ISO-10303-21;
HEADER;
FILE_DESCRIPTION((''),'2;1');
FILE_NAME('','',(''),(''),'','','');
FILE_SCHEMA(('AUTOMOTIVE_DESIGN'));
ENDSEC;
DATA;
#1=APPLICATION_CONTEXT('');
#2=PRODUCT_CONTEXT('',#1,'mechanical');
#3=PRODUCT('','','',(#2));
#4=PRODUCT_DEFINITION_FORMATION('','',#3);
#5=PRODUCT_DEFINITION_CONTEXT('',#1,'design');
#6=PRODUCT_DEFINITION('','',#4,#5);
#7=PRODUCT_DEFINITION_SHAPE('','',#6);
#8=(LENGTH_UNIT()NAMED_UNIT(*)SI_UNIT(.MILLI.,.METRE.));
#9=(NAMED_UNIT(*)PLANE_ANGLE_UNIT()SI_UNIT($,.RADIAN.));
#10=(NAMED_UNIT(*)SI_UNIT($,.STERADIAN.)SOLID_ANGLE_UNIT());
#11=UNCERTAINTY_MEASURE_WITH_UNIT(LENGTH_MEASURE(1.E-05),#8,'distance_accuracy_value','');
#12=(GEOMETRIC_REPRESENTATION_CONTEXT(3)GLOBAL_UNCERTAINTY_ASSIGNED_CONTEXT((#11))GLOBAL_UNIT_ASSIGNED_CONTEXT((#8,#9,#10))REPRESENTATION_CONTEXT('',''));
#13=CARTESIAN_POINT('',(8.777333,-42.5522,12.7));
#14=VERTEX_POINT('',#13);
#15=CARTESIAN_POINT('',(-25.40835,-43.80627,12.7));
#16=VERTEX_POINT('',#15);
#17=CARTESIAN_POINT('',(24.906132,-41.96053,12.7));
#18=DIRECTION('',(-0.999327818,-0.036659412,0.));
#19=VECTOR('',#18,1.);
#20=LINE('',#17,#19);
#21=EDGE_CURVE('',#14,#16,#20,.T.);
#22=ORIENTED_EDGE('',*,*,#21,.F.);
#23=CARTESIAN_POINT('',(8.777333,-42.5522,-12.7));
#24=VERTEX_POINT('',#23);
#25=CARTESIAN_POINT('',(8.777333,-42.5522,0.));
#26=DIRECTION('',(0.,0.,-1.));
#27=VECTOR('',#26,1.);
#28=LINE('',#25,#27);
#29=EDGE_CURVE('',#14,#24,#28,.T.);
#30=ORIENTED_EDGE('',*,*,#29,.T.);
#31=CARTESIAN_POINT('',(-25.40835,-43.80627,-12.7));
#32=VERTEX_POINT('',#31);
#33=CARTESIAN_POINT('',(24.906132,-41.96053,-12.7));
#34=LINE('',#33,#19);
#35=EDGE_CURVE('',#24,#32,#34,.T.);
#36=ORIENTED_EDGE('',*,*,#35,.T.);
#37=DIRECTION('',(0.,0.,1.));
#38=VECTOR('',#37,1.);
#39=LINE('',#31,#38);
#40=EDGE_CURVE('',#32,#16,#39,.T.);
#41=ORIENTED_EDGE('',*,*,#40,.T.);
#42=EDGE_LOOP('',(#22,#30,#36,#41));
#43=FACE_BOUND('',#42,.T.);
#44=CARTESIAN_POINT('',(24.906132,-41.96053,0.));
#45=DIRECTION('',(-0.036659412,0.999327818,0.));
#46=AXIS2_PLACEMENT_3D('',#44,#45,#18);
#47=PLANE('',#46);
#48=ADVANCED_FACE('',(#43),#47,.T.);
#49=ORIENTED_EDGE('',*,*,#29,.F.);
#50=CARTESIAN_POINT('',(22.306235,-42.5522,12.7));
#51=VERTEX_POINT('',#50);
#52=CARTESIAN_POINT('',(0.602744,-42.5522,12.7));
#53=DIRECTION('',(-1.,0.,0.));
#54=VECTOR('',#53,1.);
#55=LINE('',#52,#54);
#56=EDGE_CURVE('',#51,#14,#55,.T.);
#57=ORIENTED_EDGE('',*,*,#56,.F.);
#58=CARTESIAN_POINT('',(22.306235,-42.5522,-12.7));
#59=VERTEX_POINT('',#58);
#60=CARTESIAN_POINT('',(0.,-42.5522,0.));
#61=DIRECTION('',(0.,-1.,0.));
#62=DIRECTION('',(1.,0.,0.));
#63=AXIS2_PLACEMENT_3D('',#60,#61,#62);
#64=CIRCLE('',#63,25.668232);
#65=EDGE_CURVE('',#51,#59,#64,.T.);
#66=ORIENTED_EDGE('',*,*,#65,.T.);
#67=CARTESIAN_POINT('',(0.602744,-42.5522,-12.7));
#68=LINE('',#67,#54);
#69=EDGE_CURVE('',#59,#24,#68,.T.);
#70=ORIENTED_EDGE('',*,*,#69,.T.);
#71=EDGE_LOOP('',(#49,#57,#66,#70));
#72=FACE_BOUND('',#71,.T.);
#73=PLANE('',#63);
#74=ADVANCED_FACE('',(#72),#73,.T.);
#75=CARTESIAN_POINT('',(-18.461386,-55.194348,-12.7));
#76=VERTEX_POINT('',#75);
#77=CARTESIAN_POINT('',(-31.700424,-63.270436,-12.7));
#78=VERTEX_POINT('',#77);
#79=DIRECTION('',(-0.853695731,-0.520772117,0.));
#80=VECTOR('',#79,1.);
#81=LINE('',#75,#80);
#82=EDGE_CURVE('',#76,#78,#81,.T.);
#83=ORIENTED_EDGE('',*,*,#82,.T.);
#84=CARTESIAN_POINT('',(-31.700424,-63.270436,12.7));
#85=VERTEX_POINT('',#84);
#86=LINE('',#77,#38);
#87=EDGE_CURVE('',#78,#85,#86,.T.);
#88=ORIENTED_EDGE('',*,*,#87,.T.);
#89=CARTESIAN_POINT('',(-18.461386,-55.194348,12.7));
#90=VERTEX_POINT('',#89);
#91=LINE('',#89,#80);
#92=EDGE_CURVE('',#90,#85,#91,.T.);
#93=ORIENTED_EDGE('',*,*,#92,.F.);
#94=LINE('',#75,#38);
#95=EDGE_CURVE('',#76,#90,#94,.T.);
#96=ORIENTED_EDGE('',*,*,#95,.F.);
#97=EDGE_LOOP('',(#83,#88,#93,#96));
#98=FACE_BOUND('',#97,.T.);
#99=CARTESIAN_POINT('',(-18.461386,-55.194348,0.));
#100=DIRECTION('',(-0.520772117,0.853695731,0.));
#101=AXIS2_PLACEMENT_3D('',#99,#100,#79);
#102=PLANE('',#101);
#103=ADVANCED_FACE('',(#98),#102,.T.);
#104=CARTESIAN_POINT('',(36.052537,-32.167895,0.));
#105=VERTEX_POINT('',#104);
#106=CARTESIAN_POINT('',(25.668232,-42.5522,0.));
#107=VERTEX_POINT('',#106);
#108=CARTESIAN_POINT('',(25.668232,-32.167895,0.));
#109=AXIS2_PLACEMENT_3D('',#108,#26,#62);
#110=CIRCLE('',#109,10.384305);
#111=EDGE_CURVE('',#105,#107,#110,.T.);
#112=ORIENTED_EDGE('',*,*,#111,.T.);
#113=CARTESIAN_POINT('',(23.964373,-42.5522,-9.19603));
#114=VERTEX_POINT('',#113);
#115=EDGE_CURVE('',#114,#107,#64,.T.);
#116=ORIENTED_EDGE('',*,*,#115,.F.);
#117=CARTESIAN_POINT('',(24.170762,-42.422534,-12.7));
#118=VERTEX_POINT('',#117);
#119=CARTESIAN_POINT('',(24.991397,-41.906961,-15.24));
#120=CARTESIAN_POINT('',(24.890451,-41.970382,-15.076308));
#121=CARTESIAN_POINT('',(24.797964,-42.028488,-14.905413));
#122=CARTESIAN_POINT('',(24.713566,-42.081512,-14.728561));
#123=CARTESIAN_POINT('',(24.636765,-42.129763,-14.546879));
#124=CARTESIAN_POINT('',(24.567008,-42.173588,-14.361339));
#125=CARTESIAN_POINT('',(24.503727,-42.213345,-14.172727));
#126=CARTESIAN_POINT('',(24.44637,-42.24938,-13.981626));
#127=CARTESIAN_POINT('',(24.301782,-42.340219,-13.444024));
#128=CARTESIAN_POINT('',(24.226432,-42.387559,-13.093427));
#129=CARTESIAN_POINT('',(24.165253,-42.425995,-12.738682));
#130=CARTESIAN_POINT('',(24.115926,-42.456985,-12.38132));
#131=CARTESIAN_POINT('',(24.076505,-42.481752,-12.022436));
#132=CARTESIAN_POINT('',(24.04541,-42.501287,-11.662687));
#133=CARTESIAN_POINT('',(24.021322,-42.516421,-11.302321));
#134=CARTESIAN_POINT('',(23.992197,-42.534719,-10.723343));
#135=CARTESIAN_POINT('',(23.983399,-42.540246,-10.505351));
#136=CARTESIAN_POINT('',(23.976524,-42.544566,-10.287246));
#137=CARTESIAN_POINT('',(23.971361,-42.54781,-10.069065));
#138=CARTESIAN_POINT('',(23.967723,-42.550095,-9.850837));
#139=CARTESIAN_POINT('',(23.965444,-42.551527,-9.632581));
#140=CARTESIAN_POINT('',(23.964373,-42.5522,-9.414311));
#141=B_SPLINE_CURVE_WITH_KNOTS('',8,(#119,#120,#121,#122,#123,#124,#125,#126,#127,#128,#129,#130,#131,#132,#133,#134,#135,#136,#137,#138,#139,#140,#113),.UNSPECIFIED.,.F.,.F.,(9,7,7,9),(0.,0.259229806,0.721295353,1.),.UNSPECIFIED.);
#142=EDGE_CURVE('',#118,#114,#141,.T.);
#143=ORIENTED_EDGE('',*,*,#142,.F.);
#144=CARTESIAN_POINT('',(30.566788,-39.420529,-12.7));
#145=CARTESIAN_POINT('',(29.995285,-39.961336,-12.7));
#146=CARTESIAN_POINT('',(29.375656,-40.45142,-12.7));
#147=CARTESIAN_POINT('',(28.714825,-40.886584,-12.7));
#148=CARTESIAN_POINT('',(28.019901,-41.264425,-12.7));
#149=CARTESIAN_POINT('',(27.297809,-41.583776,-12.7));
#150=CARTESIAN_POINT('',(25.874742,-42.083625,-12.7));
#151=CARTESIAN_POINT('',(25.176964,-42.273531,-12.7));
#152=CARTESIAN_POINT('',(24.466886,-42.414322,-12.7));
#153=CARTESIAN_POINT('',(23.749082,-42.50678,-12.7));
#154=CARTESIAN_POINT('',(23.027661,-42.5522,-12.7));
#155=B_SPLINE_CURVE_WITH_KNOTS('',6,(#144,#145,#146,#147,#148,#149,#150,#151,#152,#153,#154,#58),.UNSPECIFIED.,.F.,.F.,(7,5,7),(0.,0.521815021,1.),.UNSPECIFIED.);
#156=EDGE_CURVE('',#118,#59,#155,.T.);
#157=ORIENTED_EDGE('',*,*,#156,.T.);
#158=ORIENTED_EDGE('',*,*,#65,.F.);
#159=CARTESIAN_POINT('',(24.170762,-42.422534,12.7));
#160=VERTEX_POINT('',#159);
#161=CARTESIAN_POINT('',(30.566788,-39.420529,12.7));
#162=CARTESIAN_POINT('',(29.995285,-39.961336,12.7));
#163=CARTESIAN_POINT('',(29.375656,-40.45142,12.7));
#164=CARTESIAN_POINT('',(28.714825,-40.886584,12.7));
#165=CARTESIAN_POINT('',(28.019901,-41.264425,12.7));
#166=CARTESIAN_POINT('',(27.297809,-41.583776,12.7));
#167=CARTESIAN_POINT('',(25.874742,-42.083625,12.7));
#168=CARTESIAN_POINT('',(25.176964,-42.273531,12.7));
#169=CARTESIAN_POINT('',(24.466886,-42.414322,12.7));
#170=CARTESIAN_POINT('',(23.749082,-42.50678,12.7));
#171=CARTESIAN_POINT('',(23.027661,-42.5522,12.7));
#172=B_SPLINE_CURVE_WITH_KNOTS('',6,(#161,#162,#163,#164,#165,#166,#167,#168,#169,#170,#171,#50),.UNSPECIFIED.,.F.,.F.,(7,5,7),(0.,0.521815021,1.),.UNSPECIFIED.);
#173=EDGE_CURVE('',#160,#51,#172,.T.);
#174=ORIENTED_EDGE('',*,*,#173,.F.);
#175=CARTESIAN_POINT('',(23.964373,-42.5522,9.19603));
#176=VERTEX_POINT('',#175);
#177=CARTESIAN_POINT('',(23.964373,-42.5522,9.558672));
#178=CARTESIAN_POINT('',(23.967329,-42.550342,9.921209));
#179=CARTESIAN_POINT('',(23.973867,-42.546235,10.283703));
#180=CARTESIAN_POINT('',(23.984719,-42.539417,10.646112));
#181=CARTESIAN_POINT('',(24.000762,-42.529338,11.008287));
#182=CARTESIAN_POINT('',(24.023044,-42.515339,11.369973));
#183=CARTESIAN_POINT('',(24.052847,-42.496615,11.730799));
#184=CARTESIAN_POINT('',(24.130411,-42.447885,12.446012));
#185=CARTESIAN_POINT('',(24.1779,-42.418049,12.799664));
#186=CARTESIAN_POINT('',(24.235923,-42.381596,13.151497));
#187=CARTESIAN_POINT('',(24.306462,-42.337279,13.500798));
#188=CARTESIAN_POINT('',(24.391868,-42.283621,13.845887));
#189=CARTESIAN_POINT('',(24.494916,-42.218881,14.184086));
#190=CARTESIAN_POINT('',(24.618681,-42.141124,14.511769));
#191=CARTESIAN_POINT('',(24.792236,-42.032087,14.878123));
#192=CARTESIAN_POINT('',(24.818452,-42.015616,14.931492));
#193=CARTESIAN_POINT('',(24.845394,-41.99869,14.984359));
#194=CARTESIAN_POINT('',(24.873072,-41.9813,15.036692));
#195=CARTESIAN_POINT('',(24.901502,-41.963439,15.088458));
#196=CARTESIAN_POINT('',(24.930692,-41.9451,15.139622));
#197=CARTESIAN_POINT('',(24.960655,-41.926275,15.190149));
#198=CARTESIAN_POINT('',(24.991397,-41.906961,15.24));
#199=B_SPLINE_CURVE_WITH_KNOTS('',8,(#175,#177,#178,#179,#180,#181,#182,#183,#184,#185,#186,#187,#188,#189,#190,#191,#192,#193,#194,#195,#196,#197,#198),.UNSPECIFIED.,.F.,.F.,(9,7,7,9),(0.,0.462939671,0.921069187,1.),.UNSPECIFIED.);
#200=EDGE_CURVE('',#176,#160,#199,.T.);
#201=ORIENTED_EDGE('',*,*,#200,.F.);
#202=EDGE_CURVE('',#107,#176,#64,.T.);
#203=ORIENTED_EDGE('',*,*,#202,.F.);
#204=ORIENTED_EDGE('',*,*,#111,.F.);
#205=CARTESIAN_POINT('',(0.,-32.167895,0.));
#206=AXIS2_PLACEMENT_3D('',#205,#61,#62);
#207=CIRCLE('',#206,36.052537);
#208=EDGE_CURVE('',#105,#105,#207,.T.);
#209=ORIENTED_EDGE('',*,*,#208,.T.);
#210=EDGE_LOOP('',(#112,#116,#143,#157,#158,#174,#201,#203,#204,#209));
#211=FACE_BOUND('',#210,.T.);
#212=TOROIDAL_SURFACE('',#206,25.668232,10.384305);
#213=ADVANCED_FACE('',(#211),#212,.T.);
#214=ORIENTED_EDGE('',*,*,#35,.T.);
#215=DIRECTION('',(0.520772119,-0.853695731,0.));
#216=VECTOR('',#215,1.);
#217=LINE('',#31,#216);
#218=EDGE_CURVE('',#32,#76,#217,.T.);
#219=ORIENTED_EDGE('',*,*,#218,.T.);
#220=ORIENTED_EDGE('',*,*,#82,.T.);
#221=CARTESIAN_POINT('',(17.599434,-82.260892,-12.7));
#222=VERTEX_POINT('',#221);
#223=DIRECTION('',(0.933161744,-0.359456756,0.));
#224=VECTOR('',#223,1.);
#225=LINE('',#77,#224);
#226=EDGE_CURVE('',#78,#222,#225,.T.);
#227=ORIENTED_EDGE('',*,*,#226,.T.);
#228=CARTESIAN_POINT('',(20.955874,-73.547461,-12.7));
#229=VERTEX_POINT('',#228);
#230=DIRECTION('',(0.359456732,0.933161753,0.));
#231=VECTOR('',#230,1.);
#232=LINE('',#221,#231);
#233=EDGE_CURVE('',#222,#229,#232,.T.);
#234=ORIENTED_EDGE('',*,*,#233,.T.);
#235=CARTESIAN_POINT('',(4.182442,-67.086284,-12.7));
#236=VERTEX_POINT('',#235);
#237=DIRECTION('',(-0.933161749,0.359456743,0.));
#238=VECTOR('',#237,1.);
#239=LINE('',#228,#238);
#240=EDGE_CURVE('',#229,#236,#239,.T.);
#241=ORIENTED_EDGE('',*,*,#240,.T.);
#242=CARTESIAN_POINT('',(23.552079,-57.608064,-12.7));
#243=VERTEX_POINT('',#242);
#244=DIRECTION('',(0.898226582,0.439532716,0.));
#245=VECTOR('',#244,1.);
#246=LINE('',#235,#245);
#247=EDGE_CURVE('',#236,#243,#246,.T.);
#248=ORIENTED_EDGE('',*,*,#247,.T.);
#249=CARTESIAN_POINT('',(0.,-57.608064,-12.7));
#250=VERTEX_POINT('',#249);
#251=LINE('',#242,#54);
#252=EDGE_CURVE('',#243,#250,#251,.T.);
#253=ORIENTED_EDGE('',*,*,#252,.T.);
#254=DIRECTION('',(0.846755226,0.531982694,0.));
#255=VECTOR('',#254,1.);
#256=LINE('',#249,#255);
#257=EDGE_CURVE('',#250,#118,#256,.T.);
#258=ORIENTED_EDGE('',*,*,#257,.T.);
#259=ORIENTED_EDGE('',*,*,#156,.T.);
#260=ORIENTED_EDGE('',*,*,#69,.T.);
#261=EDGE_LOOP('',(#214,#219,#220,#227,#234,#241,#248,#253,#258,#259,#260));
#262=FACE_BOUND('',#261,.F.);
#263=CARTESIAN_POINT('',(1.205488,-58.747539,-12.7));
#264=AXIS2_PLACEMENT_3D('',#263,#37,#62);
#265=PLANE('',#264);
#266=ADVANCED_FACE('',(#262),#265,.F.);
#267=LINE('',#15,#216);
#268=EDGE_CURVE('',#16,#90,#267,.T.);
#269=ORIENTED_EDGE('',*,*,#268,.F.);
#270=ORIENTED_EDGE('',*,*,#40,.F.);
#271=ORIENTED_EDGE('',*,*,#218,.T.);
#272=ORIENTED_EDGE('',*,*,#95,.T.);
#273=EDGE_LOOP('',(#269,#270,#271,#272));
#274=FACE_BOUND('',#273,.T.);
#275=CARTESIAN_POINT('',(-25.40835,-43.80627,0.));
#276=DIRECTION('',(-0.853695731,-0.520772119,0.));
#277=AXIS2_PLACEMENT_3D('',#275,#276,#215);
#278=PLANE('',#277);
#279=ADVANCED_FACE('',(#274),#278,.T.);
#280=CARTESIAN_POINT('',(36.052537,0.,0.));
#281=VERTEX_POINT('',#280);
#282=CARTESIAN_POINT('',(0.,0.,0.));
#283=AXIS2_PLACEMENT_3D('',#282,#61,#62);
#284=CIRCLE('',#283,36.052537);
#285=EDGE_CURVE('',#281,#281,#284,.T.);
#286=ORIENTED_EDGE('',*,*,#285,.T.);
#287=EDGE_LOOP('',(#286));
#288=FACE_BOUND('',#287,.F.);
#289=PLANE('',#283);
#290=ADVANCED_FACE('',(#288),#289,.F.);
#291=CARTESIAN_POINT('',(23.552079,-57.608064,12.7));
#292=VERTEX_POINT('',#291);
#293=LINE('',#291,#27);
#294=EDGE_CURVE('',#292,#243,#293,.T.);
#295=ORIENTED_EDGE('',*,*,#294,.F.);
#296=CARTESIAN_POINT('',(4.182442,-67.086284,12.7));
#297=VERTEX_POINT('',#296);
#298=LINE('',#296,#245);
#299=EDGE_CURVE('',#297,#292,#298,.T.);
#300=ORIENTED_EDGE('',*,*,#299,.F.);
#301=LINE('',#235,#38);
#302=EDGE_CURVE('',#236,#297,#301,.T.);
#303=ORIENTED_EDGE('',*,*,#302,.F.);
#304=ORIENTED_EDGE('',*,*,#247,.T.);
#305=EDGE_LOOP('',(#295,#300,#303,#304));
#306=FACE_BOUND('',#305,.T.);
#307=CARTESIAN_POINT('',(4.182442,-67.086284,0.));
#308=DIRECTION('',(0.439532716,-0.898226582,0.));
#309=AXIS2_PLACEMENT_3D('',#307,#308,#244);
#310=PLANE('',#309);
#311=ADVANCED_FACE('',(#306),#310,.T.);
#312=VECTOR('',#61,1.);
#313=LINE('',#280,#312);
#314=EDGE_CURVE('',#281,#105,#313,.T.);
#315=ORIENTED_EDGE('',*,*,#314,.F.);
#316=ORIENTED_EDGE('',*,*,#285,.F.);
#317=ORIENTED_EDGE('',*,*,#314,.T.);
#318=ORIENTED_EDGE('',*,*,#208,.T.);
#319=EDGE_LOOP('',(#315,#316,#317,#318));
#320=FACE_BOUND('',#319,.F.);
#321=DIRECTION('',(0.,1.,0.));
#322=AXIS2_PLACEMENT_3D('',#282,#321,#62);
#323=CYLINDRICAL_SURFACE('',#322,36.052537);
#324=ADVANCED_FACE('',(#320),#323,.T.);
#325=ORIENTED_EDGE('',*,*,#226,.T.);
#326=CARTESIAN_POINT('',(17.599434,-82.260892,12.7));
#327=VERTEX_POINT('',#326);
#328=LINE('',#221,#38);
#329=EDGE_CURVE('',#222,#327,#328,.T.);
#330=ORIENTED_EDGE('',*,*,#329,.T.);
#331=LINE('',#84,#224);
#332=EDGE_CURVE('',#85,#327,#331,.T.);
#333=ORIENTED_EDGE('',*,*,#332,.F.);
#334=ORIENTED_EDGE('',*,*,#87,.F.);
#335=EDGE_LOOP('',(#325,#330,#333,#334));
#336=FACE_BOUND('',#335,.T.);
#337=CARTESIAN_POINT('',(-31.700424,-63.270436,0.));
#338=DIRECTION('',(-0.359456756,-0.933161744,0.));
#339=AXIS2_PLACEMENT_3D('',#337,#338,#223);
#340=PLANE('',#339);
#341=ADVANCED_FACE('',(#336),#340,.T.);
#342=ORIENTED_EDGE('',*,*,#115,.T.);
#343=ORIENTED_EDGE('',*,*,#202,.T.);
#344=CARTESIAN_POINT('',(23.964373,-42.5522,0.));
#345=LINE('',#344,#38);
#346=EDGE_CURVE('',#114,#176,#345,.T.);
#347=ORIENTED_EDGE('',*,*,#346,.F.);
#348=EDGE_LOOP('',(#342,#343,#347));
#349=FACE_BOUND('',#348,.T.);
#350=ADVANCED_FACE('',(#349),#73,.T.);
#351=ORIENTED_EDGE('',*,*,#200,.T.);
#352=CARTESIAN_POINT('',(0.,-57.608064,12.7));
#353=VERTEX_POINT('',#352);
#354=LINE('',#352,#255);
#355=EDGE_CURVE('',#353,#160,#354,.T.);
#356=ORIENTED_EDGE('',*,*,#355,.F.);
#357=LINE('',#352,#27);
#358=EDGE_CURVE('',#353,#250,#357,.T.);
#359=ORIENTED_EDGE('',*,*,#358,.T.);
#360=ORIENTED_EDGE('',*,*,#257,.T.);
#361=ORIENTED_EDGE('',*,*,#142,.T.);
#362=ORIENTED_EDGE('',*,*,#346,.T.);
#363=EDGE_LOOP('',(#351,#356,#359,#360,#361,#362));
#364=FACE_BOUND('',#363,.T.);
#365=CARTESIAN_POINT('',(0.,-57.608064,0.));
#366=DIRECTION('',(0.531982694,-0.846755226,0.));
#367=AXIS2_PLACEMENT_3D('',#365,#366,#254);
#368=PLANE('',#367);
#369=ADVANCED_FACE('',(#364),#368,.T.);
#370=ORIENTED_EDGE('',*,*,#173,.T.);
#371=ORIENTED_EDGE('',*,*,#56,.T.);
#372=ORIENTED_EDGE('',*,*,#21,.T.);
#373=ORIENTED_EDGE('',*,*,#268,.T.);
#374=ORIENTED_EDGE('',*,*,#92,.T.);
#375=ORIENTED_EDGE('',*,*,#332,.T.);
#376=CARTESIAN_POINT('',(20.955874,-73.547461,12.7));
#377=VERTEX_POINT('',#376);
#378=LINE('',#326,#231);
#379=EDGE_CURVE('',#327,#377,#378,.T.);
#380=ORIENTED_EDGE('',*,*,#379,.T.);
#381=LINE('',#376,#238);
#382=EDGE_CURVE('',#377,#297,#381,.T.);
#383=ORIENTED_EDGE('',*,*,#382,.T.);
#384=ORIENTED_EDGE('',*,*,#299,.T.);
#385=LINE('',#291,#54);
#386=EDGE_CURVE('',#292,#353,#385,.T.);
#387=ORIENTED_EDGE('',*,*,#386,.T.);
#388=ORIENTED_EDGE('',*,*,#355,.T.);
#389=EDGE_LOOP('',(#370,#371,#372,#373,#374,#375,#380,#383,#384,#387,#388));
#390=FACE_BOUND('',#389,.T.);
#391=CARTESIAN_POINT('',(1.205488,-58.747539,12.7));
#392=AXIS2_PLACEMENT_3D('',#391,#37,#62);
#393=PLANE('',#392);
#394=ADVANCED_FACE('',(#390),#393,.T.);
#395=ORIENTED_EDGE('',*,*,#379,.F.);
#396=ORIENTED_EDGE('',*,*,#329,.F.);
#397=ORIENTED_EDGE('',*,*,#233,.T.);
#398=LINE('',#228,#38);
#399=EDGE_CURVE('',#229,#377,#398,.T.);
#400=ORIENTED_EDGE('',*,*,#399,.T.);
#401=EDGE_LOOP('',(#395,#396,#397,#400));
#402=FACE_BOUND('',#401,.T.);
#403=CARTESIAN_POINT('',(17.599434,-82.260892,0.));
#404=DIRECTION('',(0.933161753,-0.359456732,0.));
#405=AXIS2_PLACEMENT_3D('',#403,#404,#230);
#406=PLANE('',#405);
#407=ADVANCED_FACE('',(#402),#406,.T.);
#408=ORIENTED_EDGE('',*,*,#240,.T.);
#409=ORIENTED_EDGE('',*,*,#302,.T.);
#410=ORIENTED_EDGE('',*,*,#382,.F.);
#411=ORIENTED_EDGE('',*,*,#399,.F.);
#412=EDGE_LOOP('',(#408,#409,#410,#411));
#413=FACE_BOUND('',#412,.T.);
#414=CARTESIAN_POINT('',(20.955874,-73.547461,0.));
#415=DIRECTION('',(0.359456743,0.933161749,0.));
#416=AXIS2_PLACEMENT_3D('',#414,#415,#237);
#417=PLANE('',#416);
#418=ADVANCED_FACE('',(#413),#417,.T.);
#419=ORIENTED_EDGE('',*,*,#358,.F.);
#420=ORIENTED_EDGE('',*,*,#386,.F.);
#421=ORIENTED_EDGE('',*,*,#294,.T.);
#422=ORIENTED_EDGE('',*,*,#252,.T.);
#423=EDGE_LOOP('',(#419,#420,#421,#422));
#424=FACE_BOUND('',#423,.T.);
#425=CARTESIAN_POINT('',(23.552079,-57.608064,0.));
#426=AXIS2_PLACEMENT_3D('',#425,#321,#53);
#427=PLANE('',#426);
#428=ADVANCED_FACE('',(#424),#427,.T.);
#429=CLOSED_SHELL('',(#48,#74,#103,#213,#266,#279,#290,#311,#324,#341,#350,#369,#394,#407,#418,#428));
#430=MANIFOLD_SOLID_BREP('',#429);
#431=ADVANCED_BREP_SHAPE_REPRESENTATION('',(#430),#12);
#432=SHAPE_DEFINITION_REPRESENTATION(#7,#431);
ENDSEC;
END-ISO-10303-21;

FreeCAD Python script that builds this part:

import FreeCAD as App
import Part
import Sketcher

V = App.Vector
Q = App.Units.Quantity


def edges_at(feature, points):
    """Names of the edges that pass closest to the given points."""
    edges = feature.Shape.Edges
    near = lambda p: min(range(len(edges)), key=lambda i: edges[i].distToShape(Part.Vertex(*p))[0])
    return sorted({f"Edge{near(p) + 1}" for p in points})

doc = App.newDocument("Part")
body = doc.addObject("PartDesign::Body", "Body")

sketch1 = body.newObject("Sketcher::SketchObject", "Sketch")
sketch1.AttachmentSupport = (doc.getObject("XZ_Plane"), [""])
sketch1.MapMode = "FlatFace"
sketch1.addGeometry(Part.Circle(V(0, 0, 0), V(0, 0, 1), 36), False)
sketch1.addConstraint([
    Sketcher.Constraint("Coincident", 0, 3, -1, 1),
    Sketcher.Constraint("Diameter", 0, 72.105074),
])
pad1 = body.newObject("PartDesign::Pad", "Pad")
pad1.Profile = sketch1
pad1.Length = 42.5522
doc.recompute()

fillet = body.newObject("PartDesign::Fillet", "Fillet")
fillet.Base = (pad1, edges_at(pad1, [(-36.053, -42.552, 0)]))
fillet.Radius = 10.384305

sketch2 = body.newObject("Sketcher::SketchObject", "Sketch001")
sketch2.AttachmentSupport = (doc.getObject("XY_Plane"), [""])
sketch2.MapMode = "FlatFace"
sketch2.addGeometry([
    Part.LineSegment(V(25, -42, 0), V(-25, -44, 0)),
    Part.LineSegment(V(-25, -44, 0), V(-18, -55, 0)),
    Part.LineSegment(V(-18, -55, 0), V(-32, -63, 0)),
    Part.LineSegment(V(-32, -63, 0), V(18, -82, 0)),
    Part.LineSegment(V(18, -82, 0), V(21, -74, 0)),
    Part.LineSegment(V(21, -74, 0), V(4, -67, 0)),
    Part.LineSegment(V(4, -67, 0), V(24, -58, 0)),
    Part.LineSegment(V(24, -58, 0), V(0, -58, 0)),
    Part.LineSegment(V(0, -58, 0), V(25, -42, 0)),
], False)
sketch2.addConstraint([
    Sketcher.Constraint("Coincident", 0, 2, 1, 1),
    Sketcher.Constraint("Coincident", 1, 2, 2, 1),
    Sketcher.Constraint("Coincident", 2, 2, 3, 1),
    Sketcher.Constraint("Coincident", 3, 2, 4, 1),
    Sketcher.Constraint("Coincident", 4, 2, 5, 1),
    Sketcher.Constraint("Coincident", 5, 2, 6, 1),
    Sketcher.Constraint("Coincident", 6, 2, 7, 1),
    Sketcher.Constraint("Coincident", 7, 2, 8, 1),
    Sketcher.Constraint("Coincident", 8, 2, 0, 1),
    Sketcher.Constraint("Horizontal", 7),
    Sketcher.Constraint("PointOnObject", 7, 2, -2),
    Sketcher.Constraint("Perpendicular", 1, 2),
    Sketcher.Constraint("Perpendicular", 3, 4),
    Sketcher.Constraint("Perpendicular", 4, 5),
    Sketcher.Constraint("DistanceX", 7, 2, 7, 1, 23.552079),
    Sketcher.Constraint("DistanceX", 2, 2, 4, 2, 52.656298),
    Sketcher.Constraint("DistanceX", 3, 2, 8, 2, 7.306698),
    Sketcher.Constraint("Distance", 1, 13.339739),
    Sketcher.Constraint("Distance", 2, 15.507912),
    Sketcher.Constraint("Distance", 3, 52.830989),
    Sketcher.Constraint("Distance", 5, 17.974839),
    Sketcher.Constraint("Distance", 6, 21.564311),
    Sketcher.Constraint("DistanceX", 0, 2, -1, 1, 25.40835),
    Sketcher.Constraint("DistanceY", 0, 2, -1, 1, 43.80627),
    Sketcher.Constraint("DistanceY", 3, 2, -1, 1, 82.260892),
    Sketcher.Constraint("DistanceY", 4, 2, -1, 1, 73.547461),
    Sketcher.Constraint("DistanceY", 8, 2, -1, 1, 41.96053),
])
pad2 = body.newObject("PartDesign::Pad", "Pad001")
pad2.Profile = sketch2
pad2.Length = Q("1 in")
pad2.Midplane = True

doc.recompute()
